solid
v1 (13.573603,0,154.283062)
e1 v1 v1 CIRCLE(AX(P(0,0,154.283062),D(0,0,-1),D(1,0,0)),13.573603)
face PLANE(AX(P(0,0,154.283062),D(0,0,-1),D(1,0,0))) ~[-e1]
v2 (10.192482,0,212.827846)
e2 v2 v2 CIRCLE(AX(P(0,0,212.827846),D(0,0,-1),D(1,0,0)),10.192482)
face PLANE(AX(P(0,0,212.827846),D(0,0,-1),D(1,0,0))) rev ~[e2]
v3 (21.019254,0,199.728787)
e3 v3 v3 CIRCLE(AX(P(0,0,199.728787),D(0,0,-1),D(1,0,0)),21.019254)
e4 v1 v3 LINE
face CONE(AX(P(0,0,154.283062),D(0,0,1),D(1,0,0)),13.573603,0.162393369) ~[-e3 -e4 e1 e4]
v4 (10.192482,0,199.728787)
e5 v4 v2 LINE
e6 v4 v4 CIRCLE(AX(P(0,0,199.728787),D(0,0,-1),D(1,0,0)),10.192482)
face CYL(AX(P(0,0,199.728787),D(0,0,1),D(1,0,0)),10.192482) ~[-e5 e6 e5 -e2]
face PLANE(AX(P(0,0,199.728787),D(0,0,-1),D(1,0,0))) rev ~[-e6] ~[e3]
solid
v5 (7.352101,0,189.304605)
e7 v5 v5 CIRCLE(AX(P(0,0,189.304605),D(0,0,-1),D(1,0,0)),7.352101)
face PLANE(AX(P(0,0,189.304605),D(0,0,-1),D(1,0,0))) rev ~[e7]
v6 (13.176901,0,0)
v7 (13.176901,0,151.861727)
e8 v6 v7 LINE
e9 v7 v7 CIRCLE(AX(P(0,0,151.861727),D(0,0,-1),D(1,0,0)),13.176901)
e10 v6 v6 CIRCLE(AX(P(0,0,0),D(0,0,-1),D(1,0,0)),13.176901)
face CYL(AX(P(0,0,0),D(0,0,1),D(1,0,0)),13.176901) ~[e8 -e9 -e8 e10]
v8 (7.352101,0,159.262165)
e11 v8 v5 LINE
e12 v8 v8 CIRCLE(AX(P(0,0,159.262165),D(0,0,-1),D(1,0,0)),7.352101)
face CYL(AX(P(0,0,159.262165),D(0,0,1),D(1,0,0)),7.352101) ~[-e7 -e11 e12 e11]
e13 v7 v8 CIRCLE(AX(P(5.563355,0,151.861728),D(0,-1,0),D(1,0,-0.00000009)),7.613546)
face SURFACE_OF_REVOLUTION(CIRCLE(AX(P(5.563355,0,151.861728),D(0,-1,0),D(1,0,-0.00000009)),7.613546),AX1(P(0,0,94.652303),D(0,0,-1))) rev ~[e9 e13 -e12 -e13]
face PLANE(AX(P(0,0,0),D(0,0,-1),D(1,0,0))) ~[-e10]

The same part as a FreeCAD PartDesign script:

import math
import FreeCAD as App
import Part
import Sketcher

V = App.Vector
Q = App.Units.Quantity

doc = App.newDocument("Part")
body = doc.addObject("PartDesign::Body", "Body")

# Sketch on XZ plane
sketch1 = body.newObject("Sketcher::SketchObject", "Sketch")
sketch1.AttachmentSupport = (doc.getObject("XZ_Plane"), [""])
sketch1.MapMode = "FlatFace"
sketch1.addGeometry(Part.LineSegment(V(0, 189.304605, 0), V(0, 0, 0)), False)
sketch1.addGeometry(Part.LineSegment(V(0, 0, 0), V(13.176901, 0, 0)), False)
sketch1.addGeometry(Part.LineSegment(V(13.176901, 0, 0), V(13.176901, 151.861727, 0)), False)
sketch1.addGeometry(Part.ArcOfCircle(Part.Circle(V(5.563355, 151.861728, 0), V(0, 0, 1), 7.613546), math.radians(-0.000005), math.radians(76.411762)), False)
sketch1.addGeometry(Part.LineSegment(V(7.352101, 159.262165, 0), V(7.352101, 189.304605, 0)), False)
sketch1.addGeometry(Part.LineSegment(V(7.352101, 189.304605, 0), V(0, 189.304605, 0)), False)
sketch1.addConstraint(Sketcher.Constraint("Coincident", 0, 2, 1, 1))
sketch1.addConstraint(Sketcher.Constraint("Coincident", 1, 2, 2, 1))
sketch1.addConstraint(Sketcher.Constraint("Tangent", 2, 2, 3, 1))
sketch1.addConstraint(Sketcher.Constraint("Coincident", 3, 2, 4, 1))
sketch1.addConstraint(Sketcher.Constraint("Coincident", 4, 2, 5, 1))
sketch1.addConstraint(Sketcher.Constraint("Coincident", 5, 2, 0, 1))
sketch1.addConstraint(Sketcher.Constraint("Vertical", 0))
sketch1.addConstraint(Sketcher.Constraint("Horizontal", 1))
sketch1.addConstraint(Sketcher.Constraint("Vertical", 2))
sketch1.addConstraint(Sketcher.Constraint("Vertical", 4))
sketch1.addConstraint(Sketcher.Constraint("Horizontal", 5))
sketch1.addConstraint(Sketcher.Constraint("Coincident", 0, 2, -1, 1))
sketch1.addConstraint(Sketcher.Constraint("DistanceX", 1, 1, 1, 2, Q("13.176901 mm")))
sketch1.addConstraint(Sketcher.Constraint("DistanceX", 5, 2, 5, 1, Q("7.352101 mm")))
sketch1.addConstraint(Sketcher.Constraint("Radius", 3, Q("7.613546 mm")))
sketch1.addConstraint(Sketcher.Constraint("DistanceY", 4, 1, 4, 2, Q("30.04244 mm")))
sketch1.addConstraint(Sketcher.Constraint("DistanceY", 0, 2, 0, 1, Q("189.304605 mm")))
revolution = body.newObject("PartDesign::Revolution", "Revolution")
revolution.Profile = sketch1
revolution.ReferenceAxis = (sketch1, ["V_Axis"])
revolution.Angle = 360
body2 = doc.addObject("PartDesign::Body", "Body001")

# Sketch on XZ plane
sketch2 = body2.newObject("Sketcher::SketchObject", "Sketch001")
sketch2.AttachmentSupport = (doc.getObject("XZ_Plane001"), [""])
sketch2.MapMode = "FlatFace"
sketch2.addGeometry(Part.LineSegment(V(0, 154.283062, 0), V(13.573603, 154.283062, 0)), False)
sketch2.addGeometry(Part.LineSegment(V(13.573603, 154.283062, 0), V(21.019254, 199.728787, 0)), False)
sketch2.addGeometry(Part.LineSegment(V(21.019254, 199.728787, 0), V(10.192482, 199.728787, 0)), False)
sketch2.addGeometry(Part.LineSegment(V(10.192482, 199.728787, 0), V(10.192482, 212.827846, 0)), False)
sketch2.addGeometry(Part.LineSegment(V(10.192482, 212.827846, 0), V(0, 212.827846, 0)), False)
sketch2.addGeometry(Part.LineSegment(V(0, 212.827846, 0), V(0, 154.283062, 0)), False)
sketch2.addConstraint(Sketcher.Constraint("Coincident", 0, 2, 1, 1))
sketch2.addConstraint(Sketcher.Constraint("Coincident", 1, 2, 2, 1))
sketch2.addConstraint(Sketcher.Constraint("Coincident", 2, 2, 3, 1))
sketch2.addConstraint(Sketcher.Constraint("Coincident", 3, 2, 4, 1))
sketch2.addConstraint(Sketcher.Constraint("Coincident", 4, 2, 5, 1))
sketch2.addConstraint(Sketcher.Constraint("Coincident", 5, 2, 0, 1))
sketch2.addConstraint(Sketcher.Constraint("Horizontal", 0))
sketch2.addConstraint(Sketcher.Constraint("Horizontal", 2))
sketch2.addConstraint(Sketcher.Constraint("Vertical", 3))
sketch2.addConstraint(Sketcher.Constraint("Horizontal", 4))
sketch2.addConstraint(Sketcher.Constraint("Vertical", 5))
sketch2.addConstraint(Sketcher.Constraint("PointOnObject", 4, 2, -2))
sketch2.addConstraint(Sketcher.Constraint("DistanceY", 3, 1, 3, 2, Q("13.099059 mm")))
sketch2.addConstraint(Sketcher.Constraint("Distance", 1, Q("46.051619 mm")))
sketch2.addConstraint(Sketcher.Constraint("DistanceX", 0, 1, 0, 2, Q("13.573603 mm")))
sketch2.addConstraint(Sketcher.Constraint("DistanceX", 2, 2, 2, 1, Q("10.826772 mm")))
sketch2.addConstraint(Sketcher.Constraint("DistanceX", 4, 2, 4, 1, Q("10.192482 mm")))
sketch2.addConstraint(Sketcher.Constraint("DistanceY", -1, 1, 0, 2, Q("154.283062 mm")))
revolution2 = body2.newObject("PartDesign::Revolution", "Revolution001")
revolution2.Profile = sketch2
revolution2.ReferenceAxis = (sketch2, ["V_Axis"])
revolution2.Angle = 360

doc.recompute()
